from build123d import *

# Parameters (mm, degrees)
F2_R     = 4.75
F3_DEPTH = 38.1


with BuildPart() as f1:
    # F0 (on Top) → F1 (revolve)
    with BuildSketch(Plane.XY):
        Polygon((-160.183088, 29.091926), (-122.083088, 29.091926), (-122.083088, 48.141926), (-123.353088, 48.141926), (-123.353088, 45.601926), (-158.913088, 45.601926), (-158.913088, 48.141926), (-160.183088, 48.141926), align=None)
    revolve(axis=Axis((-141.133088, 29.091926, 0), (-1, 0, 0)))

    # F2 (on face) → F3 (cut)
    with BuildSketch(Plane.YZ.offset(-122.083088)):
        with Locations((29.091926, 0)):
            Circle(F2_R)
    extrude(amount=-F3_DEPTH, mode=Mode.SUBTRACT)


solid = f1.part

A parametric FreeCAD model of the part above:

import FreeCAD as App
import Part
import Sketcher
from FreeCAD import Vector
Q = App.Units.Quantity

doc = App.newDocument("Part")
params = doc.addObject("Spreadsheet::Sheet", "Params")
for row, (alias, value) in enumerate([
    ("sketch1_width", "1.5 in"),
    ("sketch1_width2", "1.4 in"),
    ("sketch1_height", "0.1 in"),
    ("sketch1_height2", "0.75 in"),
    ("revolution_angle", "360 deg"),
    ("pocket1_length", "1.5 in"),
], start=1):
    params.set(f"A{row}", alias)
    params.set(f"B{row}", "=" + value)
    params.setAlias(f"B{row}", alias)

body = doc.addObject("PartDesign::Body", "Body")

# Sketch on XY plane
sketch1 = body.newObject("Sketcher::SketchObject", "Sketch")
sketch1.AttachmentSupport = (doc.getObject("XY_Plane"), [""])
sketch1.MapMode = "FlatFace"
sketch1.addGeometry(Part.LineSegment(Vector(-160.2, 29.1, 0), Vector(-122.1, 29.1, 0)), False)
sketch1.addGeometry(Part.LineSegment(Vector(-122.1, 29.1, 0), Vector(-122.1, 48.1, 0)), False)
sketch1.addGeometry(Part.LineSegment(Vector(-122.1, 48.1, 0), Vector(-123.4, 48.1, 0)), False)
sketch1.addGeometry(Part.LineSegment(Vector(-123.4, 48.1, 0), Vector(-123.4, 45.6, 0)), False)
sketch1.addGeometry(Part.LineSegment(Vector(-123.4, 45.6, 0), Vector(-158.9, 45.6, 0)), False)
sketch1.addGeometry(Part.LineSegment(Vector(-158.9, 45.6, 0), Vector(-158.9, 48.1, 0)), False)
sketch1.addGeometry(Part.LineSegment(Vector(-158.9, 48.1, 0), Vector(-160.2, 48.1, 0)), False)
sketch1.addGeometry(Part.LineSegment(Vector(-160.2, 48.1, 0), Vector(-160.2, 29.1, 0)), False)
sketch1.addGeometry(Part.LineSegment(Vector(-122.1, 29.1, 0), Vector(-160.2, 29.1, 0)), True)  # axis
sketch1.addConstraint(Sketcher.Constraint("Coincident", 0, 2, 1, 1))
sketch1.addConstraint(Sketcher.Constraint("Coincident", 1, 2, 2, 1))
sketch1.addConstraint(Sketcher.Constraint("Coincident", 2, 2, 3, 1))
sketch1.addConstraint(Sketcher.Constraint("Coincident", 3, 2, 4, 1))
sketch1.addConstraint(Sketcher.Constraint("Coincident", 4, 2, 5, 1))
sketch1.addConstraint(Sketcher.Constraint("Coincident", 5, 2, 6, 1))
sketch1.addConstraint(Sketcher.Constraint("Coincident", 6, 2, 7, 1))
sketch1.addConstraint(Sketcher.Constraint("Coincident", 7, 2, 0, 1))
sketch1.addConstraint(Sketcher.Constraint("Horizontal", 0))
sketch1.addConstraint(Sketcher.Constraint("Vertical", 1))
sketch1.addConstraint(Sketcher.Constraint("Horizontal", 2))
sketch1.addConstraint(Sketcher.Constraint("Vertical", 3))
sketch1.addConstraint(Sketcher.Constraint("Horizontal", 4))
sketch1.addConstraint(Sketcher.Constraint("Vertical", 5))
sketch1.addConstraint(Sketcher.Constraint("Horizontal", 6))
sketch1.addConstraint(Sketcher.Constraint("Vertical", 7))
sketch1.addConstraint(Sketcher.Constraint("Horizontal", 8))
sketch1.addConstraint(Sketcher.Constraint("Coincident", 8, 1, 0, 2))
sketch1.addConstraint(Sketcher.Constraint("Horizontal", 2, 2, 5, 2))
sketch1.addConstraint(Sketcher.Constraint("Vertical", 6, 2, 8, 2))
sketch1.addConstraint(Sketcher.Constraint("Equal", 2, 6))
sketch1.addConstraint(Sketcher.Constraint("DistanceX", 0, 1, 0, 2, Q("1.5 in")))
sketch1.addConstraint(Sketcher.Constraint("DistanceX", 4, 2, 4, 1, Q("1.4 in")))
sketch1.addConstraint(Sketcher.Constraint("DistanceY", 3, 2, 3, 1, Q("0.1 in")))
sketch1.addConstraint(Sketcher.Constraint("DistanceY", 1, 1, 1, 2, Q("0.75 in")))
sketch1.addConstraint(Sketcher.Constraint("DistanceX", 0, 2, -1, 1, Q("122.083088 mm")))
sketch1.addConstraint(Sketcher.Constraint("DistanceY", -1, 1, 0, 2, Q("29.091926 mm")))
sketch1.setExpression("Constraints[21]", "Params.sketch1_width")
sketch1.setExpression("Constraints[22]", "Params.sketch1_width2")
sketch1.setExpression("Constraints[23]", "Params.sketch1_height")
sketch1.setExpression("Constraints[24]", "Params.sketch1_height2")
revolution = body.newObject("PartDesign::Revolution", "Revolution")
revolution.Profile = sketch1
revolution.ReferenceAxis = (sketch1, ["Axis0"])
revolution.setExpression("Angle", "Params.revolution_angle")

# Sketch on YZ plane
sketch2 = body.newObject("Sketcher::SketchObject", "Sketch001")
sketch2.AttachmentSupport = (doc.getObject("YZ_Plane"), [""])
sketch2.MapMode = "FlatFace"
sketch2.AttachmentOffset = App.Placement(Vector(0, 0, -122.083088), App.Rotation())
sketch2.addGeometry(Part.Circle(Vector(29.1, 0, 0), Vector(0, 0, 1), 4.8), False)
sketch2.addConstraint(Sketcher.Constraint("PointOnObject", 0, 3, -1))
sketch2.addConstraint(Sketcher.Constraint("Diameter", 0, Q("9.5 mm")))
sketch2.addConstraint(Sketcher.Constraint("DistanceX", -1, 1, 0, 3, Q("29.091926 mm")))
pocket1 = body.newObject("PartDesign::Pocket", "Pocket")
pocket1.Profile = sketch2
pocket1.setExpression("Length", "Params.pocket1_length")

doc.recompute()
